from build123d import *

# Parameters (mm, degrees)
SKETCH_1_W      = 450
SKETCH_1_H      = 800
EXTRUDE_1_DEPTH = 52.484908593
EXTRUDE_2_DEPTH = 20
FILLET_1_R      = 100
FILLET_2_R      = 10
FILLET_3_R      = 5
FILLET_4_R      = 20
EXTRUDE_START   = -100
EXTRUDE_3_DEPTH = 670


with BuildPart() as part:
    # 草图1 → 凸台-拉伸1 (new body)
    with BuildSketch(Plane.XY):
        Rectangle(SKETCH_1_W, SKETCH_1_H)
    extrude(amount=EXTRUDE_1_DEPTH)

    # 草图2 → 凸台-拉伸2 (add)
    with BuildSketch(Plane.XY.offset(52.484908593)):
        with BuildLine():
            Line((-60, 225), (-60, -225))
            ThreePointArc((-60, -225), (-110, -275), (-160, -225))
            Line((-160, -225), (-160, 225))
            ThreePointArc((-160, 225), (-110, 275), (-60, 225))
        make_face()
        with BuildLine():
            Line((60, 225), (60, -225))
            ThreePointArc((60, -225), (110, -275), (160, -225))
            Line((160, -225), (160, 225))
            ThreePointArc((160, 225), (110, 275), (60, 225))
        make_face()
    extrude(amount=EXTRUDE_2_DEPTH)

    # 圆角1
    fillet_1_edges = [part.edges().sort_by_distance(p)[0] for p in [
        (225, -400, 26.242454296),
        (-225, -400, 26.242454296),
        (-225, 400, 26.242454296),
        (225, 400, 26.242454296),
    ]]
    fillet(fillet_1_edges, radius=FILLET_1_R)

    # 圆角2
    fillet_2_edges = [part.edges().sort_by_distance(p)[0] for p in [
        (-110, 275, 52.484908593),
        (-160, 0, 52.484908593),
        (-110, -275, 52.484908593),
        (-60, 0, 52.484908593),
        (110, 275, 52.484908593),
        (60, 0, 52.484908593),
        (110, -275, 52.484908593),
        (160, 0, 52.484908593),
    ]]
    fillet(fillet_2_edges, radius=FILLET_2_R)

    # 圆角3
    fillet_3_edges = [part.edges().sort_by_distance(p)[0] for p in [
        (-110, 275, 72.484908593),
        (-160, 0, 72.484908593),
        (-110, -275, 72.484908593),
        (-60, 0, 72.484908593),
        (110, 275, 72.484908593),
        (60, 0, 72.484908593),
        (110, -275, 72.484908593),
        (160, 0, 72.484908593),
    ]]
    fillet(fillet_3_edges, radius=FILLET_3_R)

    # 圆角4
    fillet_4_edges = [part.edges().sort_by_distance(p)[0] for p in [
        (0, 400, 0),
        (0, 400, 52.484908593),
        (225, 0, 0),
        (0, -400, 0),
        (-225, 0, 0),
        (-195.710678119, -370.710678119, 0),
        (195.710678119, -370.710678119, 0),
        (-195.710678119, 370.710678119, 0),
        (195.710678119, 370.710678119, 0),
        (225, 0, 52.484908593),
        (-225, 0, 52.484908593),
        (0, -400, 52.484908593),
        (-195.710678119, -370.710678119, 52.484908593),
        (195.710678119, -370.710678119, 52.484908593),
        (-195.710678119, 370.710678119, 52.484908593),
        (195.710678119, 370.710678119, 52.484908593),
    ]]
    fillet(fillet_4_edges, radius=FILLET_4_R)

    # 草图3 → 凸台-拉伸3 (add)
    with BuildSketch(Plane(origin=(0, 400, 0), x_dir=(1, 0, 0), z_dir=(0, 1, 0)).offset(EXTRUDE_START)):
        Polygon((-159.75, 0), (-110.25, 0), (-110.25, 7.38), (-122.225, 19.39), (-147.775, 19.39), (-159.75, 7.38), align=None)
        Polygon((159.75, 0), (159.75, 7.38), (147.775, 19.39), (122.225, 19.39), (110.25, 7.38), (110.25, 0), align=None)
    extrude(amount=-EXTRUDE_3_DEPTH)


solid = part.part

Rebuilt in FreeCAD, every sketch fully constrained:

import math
import FreeCAD as App
import Part
import Sketcher

V = App.Vector


def edges_at(feature, points):
    """Names of the edges that pass closest to the given points."""
    edges = feature.Shape.Edges
    near = lambda p: min(range(len(edges)), key=lambda i: edges[i].distToShape(Part.Vertex(*p))[0])
    return sorted({f"Edge{near(p) + 1}" for p in points})

doc = App.newDocument("Part")
body = doc.addObject("PartDesign::Body", "Body")

# Sketch on XY plane
sketch1 = doc.addObject("Sketcher::SketchObject", "Sketch")
body.addObject(sketch1)
sketch1.AttachmentSupport = (doc.XY_Plane, [""])
sketch1.MapMode = "FlatFace"
sketch1.addGeometry(Part.LineSegment(V(-225, 400, 0), V(-225, -400, 0)), False)
sketch1.addGeometry(Part.LineSegment(V(-225, -400, 0), V(225, -400, 0)), False)
sketch1.addGeometry(Part.LineSegment(V(225, -400, 0), V(225, 400, 0)), False)
sketch1.addGeometry(Part.LineSegment(V(225, 400, 0), V(-225, 400, 0)), False)
sketch1.addConstraint(Sketcher.Constraint("Coincident", 0, 2, 1, 1))
sketch1.addConstraint(Sketcher.Constraint("Coincident", 1, 2, 2, 1))
sketch1.addConstraint(Sketcher.Constraint("Coincident", 2, 2, 3, 1))
sketch1.addConstraint(Sketcher.Constraint("Coincident", 3, 2, 0, 1))
sketch1.addConstraint(Sketcher.Constraint("Vertical", 0))
sketch1.addConstraint(Sketcher.Constraint("Horizontal", 1))
sketch1.addConstraint(Sketcher.Constraint("Vertical", 2))
sketch1.addConstraint(Sketcher.Constraint("Horizontal", 3))
sketch1.addConstraint(Sketcher.Constraint("Symmetric", 0, 2, 2, 2, -1, 1))
sketch1.addConstraint(Sketcher.Constraint("DistanceX", 1, 1, 1, 2, 450.0))
sketch1.addConstraint(Sketcher.Constraint("DistanceY", 0, 2, 0, 1, 800.0))
pad1 = doc.addObject("PartDesign::Pad", "Pad")
body.addObject(pad1)
pad1.Profile = sketch1
pad1.Length = 52.484909

# Sketch on XY plane
sketch2 = doc.addObject("Sketcher::SketchObject", "Sketch001")
body.addObject(sketch2)
sketch2.AttachmentSupport = (doc.XY_Plane, [""])
sketch2.MapMode = "FlatFace"
sketch2.AttachmentOffset = App.Placement(V(0, 0, 52.484909), App.Rotation())
sketch2.addGeometry(Part.LineSegment(V(-60, -225, 0), V(-60, 225, 0)), False)
sketch2.addGeometry(Part.ArcOfCircle(Part.Circle(V(-110, 225, 0), V(0, 0, 1), 50), math.radians(0), math.radians(180)), False)
sketch2.addGeometry(Part.LineSegment(V(-160, 225, 0), V(-160, -225, 0)), False)
sketch2.addGeometry(Part.ArcOfCircle(Part.Circle(V(-110, -225, 0), V(0, 0, 1), 50), math.radians(180), math.radians(360)), False)
sketch2.addGeometry(Part.LineSegment(V(60, 225, 0), V(60, -225, 0)), False)
sketch2.addGeometry(Part.ArcOfCircle(Part.Circle(V(110, -225, 0), V(0, 0, 1), 50), math.radians(180), math.radians(360)), False)
sketch2.addGeometry(Part.LineSegment(V(160, -225, 0), V(160, 225, 0)), False)
sketch2.addGeometry(Part.ArcOfCircle(Part.Circle(V(110, 225, 0), V(0, 0, 1), 50), math.radians(0), math.radians(180)), False)
sketch2.addConstraint(Sketcher.Constraint("Tangent", 0, 2, 1, 1))
sketch2.addConstraint(Sketcher.Constraint("Tangent", 1, 2, 2, 1))
sketch2.addConstraint(Sketcher.Constraint("Tangent", 2, 2, 3, 1))
sketch2.addConstraint(Sketcher.Constraint("Tangent", 3, 2, 0, 1))
sketch2.addConstraint(Sketcher.Constraint("Tangent", 4, 2, 5, 1))
sketch2.addConstraint(Sketcher.Constraint("Tangent", 5, 2, 6, 1))
sketch2.addConstraint(Sketcher.Constraint("Tangent", 6, 2, 7, 1))
sketch2.addConstraint(Sketcher.Constraint("Tangent", 7, 2, 4, 1))
sketch2.addConstraint(Sketcher.Constraint("Vertical", 0))
sketch2.addConstraint(Sketcher.Constraint("Vertical", 2))
sketch2.addConstraint(Sketcher.Constraint("Vertical", 4))
sketch2.addConstraint(Sketcher.Constraint("Vertical", 6))
sketch2.addConstraint(Sketcher.Constraint("Equal", 3, 5))
sketch2.addConstraint(Sketcher.Constraint("Symmetric", 1, 3, 5, 3, -1, 1))
sketch2.addConstraint(Sketcher.Constraint("Horizontal", 3, 3, 5, 3))
sketch2.addConstraint(Sketcher.Constraint("Horizontal", 1, 3, 7, 3))
sketch2.addConstraint(Sketcher.Constraint("Radius", 1, 50.0))
sketch2.addConstraint(Sketcher.Constraint("DistanceY", 0, 1, 0, 2, 450.0))
sketch2.addConstraint(Sketcher.Constraint("DistanceX", 1, 3, -1, 1, 110.0))
pad2 = doc.addObject("PartDesign::Pad", "Pad001")
body.addObject(pad2)
pad2.Profile = sketch2
pad2.Length = 20
doc.recompute()

fillet = doc.addObject("PartDesign::Fillet", "Fillet")
body.addObject(fillet)
fillet.Base = (pad2, edges_at(pad2, [
    (225, -400, 26.242),
    (-225, -400, 26.242),
    (-225, 400, 26.242),
    (225, 400, 26.242),
]))
fillet.Radius = 100
doc.recompute()

fillet2 = doc.addObject("PartDesign::Fillet", "Fillet001")
body.addObject(fillet2)
fillet2.Base = (fillet, edges_at(fillet, [
    (-110, 275, 52.485),
    (-160, 0, 52.485),
    (-110, -275, 52.485),
    (-60, 0, 52.485),
    (110, 275, 52.485),
    (60, 0, 52.485),
    (110, -275, 52.485),
    (160, 0, 52.485),
]))
fillet2.Radius = 10
doc.recompute()

fillet3 = doc.addObject("PartDesign::Fillet", "Fillet002")
body.addObject(fillet3)
fillet3.Base = (fillet2, edges_at(fillet2, [
    (-110, 275, 72.485),
    (-160, 0, 72.485),
    (-110, -275, 72.485),
    (-60, 0, 72.485),
    (110, 275, 72.485),
    (60, 0, 72.485),
    (110, -275, 72.485),
    (160, 0, 72.485),
]))
fillet3.Radius = 5
doc.recompute()

fillet4 = doc.addObject("PartDesign::Fillet", "Fillet003")
body.addObject(fillet4)
fillet4.Base = (fillet3, edges_at(fillet3, [
    (0, 400, 0),
    (0, 400, 52.485),
    (225, 0, 0),
    (0, -400, 0),
    (-225, 0, 0),
    (-195.711, -370.711, 0),
    (195.711, -370.711, 0),
    (-195.711, 370.711, 0),
    (195.711, 370.711, 0),
    (225, 0, 52.485),
    (-225, 0, 52.485),
    (0, -400, 52.485),
    (-195.711, -370.711, 52.485),
    (195.711, -370.711, 52.485),
    (-195.711, 370.711, 52.485),
    (195.711, 370.711, 52.485),
]))
fillet4.Radius = 20

# Sketch on XZ plane
sketch3 = doc.addObject("Sketcher::SketchObject", "Sketch002")
body.addObject(sketch3)
sketch3.AttachmentSupport = (doc.XZ_Plane, [""])
sketch3.MapMode = "FlatFace"
sketch3.AttachmentOffset = App.Placement(V(0, 0, -300), App.Rotation())
sketch3.addGeometry(Part.LineSegment(V(-159.75, 0, 0), V(-110.25, 0, 0)), False)
sketch3.addGeometry(Part.LineSegment(V(-110.25, 0, 0), V(-110.25, -7.38, 0)), False)
sketch3.addGeometry(Part.LineSegment(V(-110.25, -7.38, 0), V(-122.225, -19.39, 0)), False)
sketch3.addGeometry(Part.LineSegment(V(-122.225, -19.39, 0), V(-147.775, -19.39, 0)), False)
sketch3.addGeometry(Part.LineSegment(V(-147.775, -19.39, 0), V(-159.75, -7.38, 0)), False)
sketch3.addGeometry(Part.LineSegment(V(-159.75, -7.38, 0), V(-159.75, 0, 0)), False)
sketch3.addGeometry(Part.LineSegment(V(159.75, 0, 0), V(159.75, -7.38, 0)), False)
sketch3.addGeometry(Part.LineSegment(V(159.75, -7.38, 0), V(147.775, -19.39, 0)), False)
sketch3.addGeometry(Part.LineSegment(V(147.775, -19.39, 0), V(122.225, -19.39, 0)), False)
sketch3.addGeometry(Part.LineSegment(V(122.225, -19.39, 0), V(110.25, -7.38, 0)), False)
sketch3.addGeometry(Part.LineSegment(V(110.25, -7.38, 0), V(110.25, 0, 0)), False)
sketch3.addGeometry(Part.LineSegment(V(110.25, 0, 0), V(159.75, 0, 0)), False)
sketch3.addConstraint(Sketcher.Constraint("Coincident", 0, 2, 1, 1))
sketch3.addConstraint(Sketcher.Constraint("Coincident", 1, 2, 2, 1))
sketch3.addConstraint(Sketcher.Constraint("Coincident", 2, 2, 3, 1))
sketch3.addConstraint(Sketcher.Constraint("Coincident", 3, 2, 4, 1))
sketch3.addConstraint(Sketcher.Constraint("Coincident", 4, 2, 5, 1))
sketch3.addConstraint(Sketcher.Constraint("Coincident", 5, 2, 0, 1))
sketch3.addConstraint(Sketcher.Constraint("Coincident", 6, 2, 7, 1))
sketch3.addConstraint(Sketcher.Constraint("Coincident", 7, 2, 8, 1))
sketch3.addConstraint(Sketcher.Constraint("Coincident", 8, 2, 9, 1))
sketch3.addConstraint(Sketcher.Constraint("Coincident", 9, 2, 10, 1))
sketch3.addConstraint(Sketcher.Constraint("Coincident", 10, 2, 11, 1))
sketch3.addConstraint(Sketcher.Constraint("Coincident", 11, 2, 6, 1))
sketch3.addConstraint(Sketcher.Constraint("Horizontal", 0))
sketch3.addConstraint(Sketcher.Constraint("Vertical", 1))
sketch3.addConstraint(Sketcher.Constraint("Horizontal", 3))
sketch3.addConstraint(Sketcher.Constraint("Vertical", 5))
sketch3.addConstraint(Sketcher.Constraint("Vertical", 6))
sketch3.addConstraint(Sketcher.Constraint("Horizontal", 8))
sketch3.addConstraint(Sketcher.Constraint("Vertical", 10))
sketch3.addConstraint(Sketcher.Constraint("Horizontal", 11))
sketch3.addConstraint(Sketcher.Constraint("Symmetric", 0, 2, 10, 2, -1, 1))
sketch3.addConstraint(Sketcher.Constraint("Symmetric", 4, 2, 6, 2, -2))
sketch3.addConstraint(Sketcher.Constraint("Symmetric", 3, 2, 7, 2, -2))
sketch3.addConstraint(Sketcher.Constraint("PointOnObject", 0, 2, -1))
sketch3.addConstraint(Sketcher.Constraint("Parallel", 2, 7))
sketch3.addConstraint(Sketcher.Constraint("Parallel", 4, 9))
sketch3.addConstraint(Sketcher.Constraint("Horizontal", 1, 2, 4, 2))
sketch3.addConstraint(Sketcher.Constraint("Horizontal", 6, 2, 9, 2))
sketch3.addConstraint(Sketcher.Constraint("DistanceX", 0, 1, 0, 2, 49.5))
sketch3.addConstraint(Sketcher.Constraint("DistanceX", 1, 2, 6, 2, 270.0))
sketch3.addConstraint(Sketcher.Constraint("DistanceX", 3, 2, 3, 1, 25.55))
sketch3.addConstraint(Sketcher.Constraint("DistanceY", 1, 2, 1, 1, 7.38))
sketch3.addConstraint(Sketcher.Constraint("DistanceY", 2, 2, -1, 1, 19.39))
pad3 = doc.addObject("PartDesign::Pad", "Pad002")
body.addObject(pad3)
pad3.Profile = sketch3
pad3.Length = 670

doc.recompute()
